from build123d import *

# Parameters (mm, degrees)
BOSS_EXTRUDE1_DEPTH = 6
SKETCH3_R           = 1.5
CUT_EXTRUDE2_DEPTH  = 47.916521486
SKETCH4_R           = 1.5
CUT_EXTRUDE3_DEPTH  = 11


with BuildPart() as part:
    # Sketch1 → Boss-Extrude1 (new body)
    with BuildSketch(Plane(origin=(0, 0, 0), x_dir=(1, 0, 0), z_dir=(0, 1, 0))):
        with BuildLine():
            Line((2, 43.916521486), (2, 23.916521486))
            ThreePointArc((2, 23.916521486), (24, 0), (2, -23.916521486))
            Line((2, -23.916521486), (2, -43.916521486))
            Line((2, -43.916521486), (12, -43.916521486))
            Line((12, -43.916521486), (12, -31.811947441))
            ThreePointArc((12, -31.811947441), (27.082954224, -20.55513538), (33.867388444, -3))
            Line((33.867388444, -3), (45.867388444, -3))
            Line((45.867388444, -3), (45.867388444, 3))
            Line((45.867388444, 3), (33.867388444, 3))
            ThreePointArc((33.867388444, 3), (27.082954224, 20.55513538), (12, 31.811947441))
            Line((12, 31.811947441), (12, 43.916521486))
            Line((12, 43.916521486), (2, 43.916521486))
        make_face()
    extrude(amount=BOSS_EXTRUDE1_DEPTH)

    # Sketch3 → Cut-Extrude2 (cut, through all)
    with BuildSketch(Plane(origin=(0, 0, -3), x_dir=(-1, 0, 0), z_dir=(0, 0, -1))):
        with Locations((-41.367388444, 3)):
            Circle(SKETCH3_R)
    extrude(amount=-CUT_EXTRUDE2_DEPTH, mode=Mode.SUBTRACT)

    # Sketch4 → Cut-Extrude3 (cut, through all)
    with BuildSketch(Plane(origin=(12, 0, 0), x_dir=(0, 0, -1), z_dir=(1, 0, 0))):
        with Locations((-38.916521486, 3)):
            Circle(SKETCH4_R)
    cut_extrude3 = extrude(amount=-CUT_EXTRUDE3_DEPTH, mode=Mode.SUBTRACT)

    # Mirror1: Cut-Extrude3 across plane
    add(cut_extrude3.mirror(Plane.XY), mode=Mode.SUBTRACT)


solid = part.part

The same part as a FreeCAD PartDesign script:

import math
import FreeCAD as App
import Part
import Sketcher

V = App.Vector

doc = App.newDocument("Part")
body = doc.addObject("PartDesign::Body", "Body")

sketch1 = doc.addObject("Sketcher::SketchObject", "Sketch")
body.addObject(sketch1)
sketch1.AttachmentSupport = (doc.XZ_Plane, [""])
sketch1.MapMode = "FlatFace"
sketch1.addGeometry(Part.LineSegment(V(2, -44, 0), V(2, -24, 0)), False)
sketch1.addGeometry(Part.ArcOfCircle(Part.Circle(V(0, 0, 0), V(0, 0, 1), 24), math.radians(-85), math.radians(85)), False)
sketch1.addGeometry(Part.LineSegment(V(2, 24, 0), V(2, 44, 0)), False)
sketch1.addGeometry(Part.LineSegment(V(2, 44, 0), V(12, 44, 0)), False)
sketch1.addGeometry(Part.LineSegment(V(12, 44, 0), V(12, 32, 0)), False)
sketch1.addGeometry(Part.ArcOfCircle(Part.Circle(V(0, 0, 0), V(0, 0, 1), 34), math.radians(5), math.radians(69)), False)
sketch1.addGeometry(Part.LineSegment(V(34, 3, 0), V(46, 3, 0)), False)
sketch1.addGeometry(Part.LineSegment(V(46, 3, 0), V(46, -3, 0)), False)
sketch1.addGeometry(Part.LineSegment(V(46, -3, 0), V(34, -3, 0)), False)
sketch1.addGeometry(Part.ArcOfCircle(Part.Circle(V(0, 0, 0), V(0, 0, 1), 34), math.radians(-69), math.radians(-5)), False)
sketch1.addGeometry(Part.LineSegment(V(12, -32, 0), V(12, -44, 0)), False)
sketch1.addGeometry(Part.LineSegment(V(12, -44, 0), V(2, -44, 0)), False)
sketch1.addConstraint(Sketcher.Constraint("Coincident", 0, 2, 1, 1))
sketch1.addConstraint(Sketcher.Constraint("Coincident", 1, 2, 2, 1))
sketch1.addConstraint(Sketcher.Constraint("Coincident", 2, 2, 3, 1))
sketch1.addConstraint(Sketcher.Constraint("Coincident", 3, 2, 4, 1))
sketch1.addConstraint(Sketcher.Constraint("Coincident", 4, 2, 5, 2))
sketch1.addConstraint(Sketcher.Constraint("Coincident", 5, 1, 6, 1))
sketch1.addConstraint(Sketcher.Constraint("Coincident", 6, 2, 7, 1))
sketch1.addConstraint(Sketcher.Constraint("Coincident", 7, 2, 8, 1))
sketch1.addConstraint(Sketcher.Constraint("Coincident", 8, 2, 9, 2))
sketch1.addConstraint(Sketcher.Constraint("Coincident", 9, 1, 10, 1))
sketch1.addConstraint(Sketcher.Constraint("Coincident", 10, 2, 11, 1))
sketch1.addConstraint(Sketcher.Constraint("Coincident", 11, 2, 0, 1))
sketch1.addConstraint(Sketcher.Constraint("Vertical", 0))
sketch1.addConstraint(Sketcher.Constraint("Vertical", 2))
sketch1.addConstraint(Sketcher.Constraint("Horizontal", 3))
sketch1.addConstraint(Sketcher.Constraint("Vertical", 4))
sketch1.addConstraint(Sketcher.Constraint("Horizontal", 6))
sketch1.addConstraint(Sketcher.Constraint("Vertical", 7))
sketch1.addConstraint(Sketcher.Constraint("Horizontal", 8))
sketch1.addConstraint(Sketcher.Constraint("Vertical", 10))
sketch1.addConstraint(Sketcher.Constraint("Horizontal", 11))
sketch1.addConstraint(Sketcher.Constraint("Coincident", 1, 3, -1, 1))
sketch1.addConstraint(Sketcher.Constraint("Coincident", 5, 3, -1, 1))
sketch1.addConstraint(Sketcher.Constraint("Coincident", 9, 3, -1, 1))
sketch1.addConstraint(Sketcher.Constraint("Equal", 5, 9))
sketch1.addConstraint(Sketcher.Constraint("Symmetric", 3, 2, 10, 2, -1))
sketch1.addConstraint(Sketcher.Constraint("Vertical", 0, 2, 1, 2))
sketch1.addConstraint(Sketcher.Constraint("Vertical", 5, 1, 8, 2))
sketch1.addConstraint(Sketcher.Constraint("Radius", 1, 24.0))
sketch1.addConstraint(Sketcher.Constraint("Radius", 5, 34.0))
sketch1.addConstraint(Sketcher.Constraint("DistanceX", 3, 1, 3, 2, 10.0))
sketch1.addConstraint(Sketcher.Constraint("DistanceX", 6, 1, 6, 2, 12.0))
sketch1.addConstraint(Sketcher.Constraint("DistanceY", 0, 1, 0, 2, 20.0))
sketch1.addConstraint(Sketcher.Constraint("DistanceY", 7, 2, 7, 1, 6.0))
sketch1.addConstraint(Sketcher.Constraint("DistanceX", -1, 1, 0, 2, 2.0))
pad1 = doc.addObject("PartDesign::Pad", "Pad")
body.addObject(pad1)
pad1.Profile = sketch1
pad1.Length = 6
pad1.Reversed = True

sketch2 = doc.addObject("Sketcher::SketchObject", "Sketch001")
body.addObject(sketch2)
sketch2.AttachmentSupport = (doc.XY_Plane, [""])
sketch2.MapMode = "FlatFace"
sketch2.AttachmentOffset = App.Placement(V(0, 0, -3), App.Rotation())
sketch2.addGeometry(Part.Circle(V(41.4, 3, 0), V(0, 0, 1), 1.5), False)
sketch2.addConstraint(Sketcher.Constraint("Diameter", 0, 3.0))
sketch2.addConstraint(Sketcher.Constraint("DistanceY", -1, 1, 0, 3, 3.0))
sketch2.addConstraint(Sketcher.Constraint("DistanceX", -1, 1, 0, 3, 41.367388))
pocket1 = doc.addObject("PartDesign::Pocket", "Pocket")
body.addObject(pocket1)
pocket1.Profile = sketch2
pocket1.Type = "ThroughAll"
pocket1.Reversed = True

sketch3 = doc.addObject("Sketcher::SketchObject", "Sketch002")
body.addObject(sketch3)
sketch3.AttachmentSupport = (doc.YZ_Plane, [""])
sketch3.MapMode = "FlatFace"
sketch3.AttachmentOffset = App.Placement(V(0, 0, 12), App.Rotation())
sketch3.addGeometry(Part.Circle(V(3, 38.9, 0), V(0, 0, 1), 1.5), False)
sketch3.addConstraint(Sketcher.Constraint("Diameter", 0, 3.0))
sketch3.addConstraint(Sketcher.Constraint("DistanceX", -1, 1, 0, 3, 3.0))
sketch3.addConstraint(Sketcher.Constraint("DistanceY", -1, 1, 0, 3, 38.916521))
pocket2 = doc.addObject("PartDesign::Pocket", "Pocket001")
body.addObject(pocket2)
pocket2.Profile = sketch3
pocket2.Type = "ThroughAll"
doc.recompute()

mirrored = doc.addObject("PartDesign::Mirrored", "Mirrored")
body.addObject(mirrored)
mirrored.Originals = [pocket2]
mirrored.MirrorPlane = (doc.XY_Plane, [""])
body.Tip = mirrored

doc.recompute()
